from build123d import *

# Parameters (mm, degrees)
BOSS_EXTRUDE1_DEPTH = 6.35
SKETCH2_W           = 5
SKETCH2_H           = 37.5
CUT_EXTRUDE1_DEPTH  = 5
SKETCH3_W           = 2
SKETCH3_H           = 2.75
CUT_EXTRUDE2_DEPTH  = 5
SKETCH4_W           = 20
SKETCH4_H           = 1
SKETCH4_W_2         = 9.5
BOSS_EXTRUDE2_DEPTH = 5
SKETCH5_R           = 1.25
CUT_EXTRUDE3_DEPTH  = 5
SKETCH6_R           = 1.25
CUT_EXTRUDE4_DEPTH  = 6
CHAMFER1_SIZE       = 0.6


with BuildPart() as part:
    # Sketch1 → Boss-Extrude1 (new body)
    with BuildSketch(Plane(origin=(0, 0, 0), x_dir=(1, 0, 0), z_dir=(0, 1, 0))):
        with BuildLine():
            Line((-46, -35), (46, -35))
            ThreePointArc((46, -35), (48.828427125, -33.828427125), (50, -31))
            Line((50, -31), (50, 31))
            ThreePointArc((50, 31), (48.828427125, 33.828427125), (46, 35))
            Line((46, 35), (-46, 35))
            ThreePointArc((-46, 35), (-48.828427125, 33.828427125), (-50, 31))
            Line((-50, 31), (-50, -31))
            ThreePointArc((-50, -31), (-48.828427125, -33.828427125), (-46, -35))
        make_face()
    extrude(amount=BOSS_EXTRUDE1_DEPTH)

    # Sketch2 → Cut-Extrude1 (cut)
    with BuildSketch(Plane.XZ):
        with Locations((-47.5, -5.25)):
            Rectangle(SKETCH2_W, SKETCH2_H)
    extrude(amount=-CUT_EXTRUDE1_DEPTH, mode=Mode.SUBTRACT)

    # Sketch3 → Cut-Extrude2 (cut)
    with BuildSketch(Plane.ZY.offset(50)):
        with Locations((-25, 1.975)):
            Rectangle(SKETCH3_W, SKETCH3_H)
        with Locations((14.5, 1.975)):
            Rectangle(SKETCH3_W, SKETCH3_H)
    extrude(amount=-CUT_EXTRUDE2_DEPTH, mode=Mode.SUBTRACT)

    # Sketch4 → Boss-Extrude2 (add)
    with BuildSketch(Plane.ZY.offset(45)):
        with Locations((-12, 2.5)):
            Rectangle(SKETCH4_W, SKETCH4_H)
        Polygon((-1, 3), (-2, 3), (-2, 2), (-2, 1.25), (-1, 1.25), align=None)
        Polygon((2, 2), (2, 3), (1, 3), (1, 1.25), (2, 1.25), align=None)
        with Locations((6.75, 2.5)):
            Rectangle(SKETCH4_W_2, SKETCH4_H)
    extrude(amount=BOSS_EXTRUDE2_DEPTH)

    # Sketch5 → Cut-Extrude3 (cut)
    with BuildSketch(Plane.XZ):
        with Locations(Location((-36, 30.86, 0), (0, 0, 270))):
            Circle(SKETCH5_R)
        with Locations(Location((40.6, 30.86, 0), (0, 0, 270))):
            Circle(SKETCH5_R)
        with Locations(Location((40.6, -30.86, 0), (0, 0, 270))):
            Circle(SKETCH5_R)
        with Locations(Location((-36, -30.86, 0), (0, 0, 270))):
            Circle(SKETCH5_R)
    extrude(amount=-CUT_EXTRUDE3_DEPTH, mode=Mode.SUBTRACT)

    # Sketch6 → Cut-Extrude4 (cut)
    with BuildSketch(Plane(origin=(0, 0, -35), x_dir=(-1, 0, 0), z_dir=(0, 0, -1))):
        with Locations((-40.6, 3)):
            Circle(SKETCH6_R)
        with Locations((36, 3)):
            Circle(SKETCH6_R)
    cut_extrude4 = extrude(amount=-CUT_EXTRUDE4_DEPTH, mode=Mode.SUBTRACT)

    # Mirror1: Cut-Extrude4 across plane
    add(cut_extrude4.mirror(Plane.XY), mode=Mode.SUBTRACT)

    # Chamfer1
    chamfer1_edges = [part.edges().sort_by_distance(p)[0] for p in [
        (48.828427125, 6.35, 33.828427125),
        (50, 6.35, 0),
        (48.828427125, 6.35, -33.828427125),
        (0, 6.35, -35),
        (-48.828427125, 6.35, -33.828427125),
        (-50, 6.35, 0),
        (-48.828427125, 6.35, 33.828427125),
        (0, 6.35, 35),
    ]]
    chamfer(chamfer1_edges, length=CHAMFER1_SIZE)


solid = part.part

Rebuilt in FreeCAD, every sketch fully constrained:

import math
import FreeCAD as App
import Part
import Sketcher

V = App.Vector
Q = App.Units.Quantity


def edges_at(feature, points):
    """Names of the edges that pass closest to the given points."""
    edges = feature.Shape.Edges
    near = lambda p: min(range(len(edges)), key=lambda i: edges[i].distToShape(Part.Vertex(*p))[0])
    return sorted({f"Edge{near(p) + 1}" for p in points})

doc = App.newDocument("Part")
params = doc.addObject("Spreadsheet::Sheet", "Params")
for row, (alias, value) in enumerate([
    ("sketch1_radius", "4 mm"),
    ("sketch1_width", "92 mm"),
    ("sketch1_height", "62 mm"),
    ("pad1_length", "6.35 mm"),
    ("sketch2_width", "5 mm"),
    ("sketch2_height", "37.5 mm"),
    ("pocket1_length", "5 mm"),
    ("sketch3_height", "2 mm"),
    ("sketch3_width", "2.75 mm"),
    ("pocket2_length", "5 mm"),
    ("sketch4_width", "1 mm"),
    ("sketch4_height", "20 mm"),
    ("sketch4_height2", "9.5 mm"),
    ("sketch4_width2", "0.75 mm"),
    ("pad2_length", "5 mm"),
    ("sketch5_diameter", "2.5 mm"),
    ("pocket3_length", "5 mm"),
    ("sketch6_diameter", "2.5 mm"),
    ("pocket4_length", "6 mm"),
    ("chamfer_size", "0.6 mm"),
], start=1):
    params.set(f"A{row}", alias)
    params.set(f"B{row}", "=" + value)
    params.setAlias(f"B{row}", alias)

body = doc.addObject("PartDesign::Body", "Body")

# Sketch on XZ plane
sketch1 = body.newObject("Sketcher::SketchObject", "Sketch")
sketch1.AttachmentSupport = (doc.getObject("XZ_Plane"), [""])
sketch1.MapMode = "FlatFace"
sketch1.addGeometry(Part.LineSegment(V(-46, 35, 0), V(46, 35, 0)), False)
sketch1.addGeometry(Part.ArcOfCircle(Part.Circle(V(46, 31, 0), V(0, 0, 1), 4), math.radians(0), math.radians(90)), False)
sketch1.addGeometry(Part.LineSegment(V(50, 31, 0), V(50, -31, 0)), False)
sketch1.addGeometry(Part.ArcOfCircle(Part.Circle(V(46, -31, 0), V(0, 0, 1), 4), math.radians(-90), math.radians(0)), False)
sketch1.addGeometry(Part.LineSegment(V(46, -35, 0), V(-46, -35, 0)), False)
sketch1.addGeometry(Part.ArcOfCircle(Part.Circle(V(-46, -31, 0), V(0, 0, 1), 4), math.radians(180), math.radians(270)), False)
sketch1.addGeometry(Part.LineSegment(V(-50, -31, 0), V(-50, 31, 0)), False)
sketch1.addGeometry(Part.ArcOfCircle(Part.Circle(V(-46, 31, 0), V(0, 0, 1), 4), math.radians(90), math.radians(180)), False)
sketch1.addConstraint(Sketcher.Constraint("Tangent", 0, 2, 1, 2))
sketch1.addConstraint(Sketcher.Constraint("Tangent", 1, 1, 2, 1))
sketch1.addConstraint(Sketcher.Constraint("Tangent", 2, 2, 3, 2))
sketch1.addConstraint(Sketcher.Constraint("Tangent", 3, 1, 4, 1))
sketch1.addConstraint(Sketcher.Constraint("Tangent", 4, 2, 5, 2))
sketch1.addConstraint(Sketcher.Constraint("Tangent", 5, 1, 6, 1))
sketch1.addConstraint(Sketcher.Constraint("Tangent", 6, 2, 7, 2))
sketch1.addConstraint(Sketcher.Constraint("Tangent", 7, 1, 0, 1))
sketch1.addConstraint(Sketcher.Constraint("Horizontal", 0))
sketch1.addConstraint(Sketcher.Constraint("Vertical", 2))
sketch1.addConstraint(Sketcher.Constraint("Horizontal", 4))
sketch1.addConstraint(Sketcher.Constraint("Vertical", 6))
sketch1.addConstraint(Sketcher.Constraint("Equal", 1, 3))
sketch1.addConstraint(Sketcher.Constraint("Equal", 3, 5))
sketch1.addConstraint(Sketcher.Constraint("Equal", 5, 7))
sketch1.addConstraint(Sketcher.Constraint("Symmetric", 1, 3, 5, 3, -1, 1))
sketch1.addConstraint(Sketcher.Constraint("Radius", 1, Q("4 mm")))
sketch1.addConstraint(Sketcher.Constraint("DistanceX", 0, 1, 0, 2, Q("92 mm")))
sketch1.addConstraint(Sketcher.Constraint("DistanceY", 2, 2, 2, 1, Q("62 mm")))
sketch1.setExpression("Constraints[16]", "Params.sketch1_radius")
sketch1.setExpression("Constraints[17]", "Params.sketch1_width")
sketch1.setExpression("Constraints[18]", "Params.sketch1_height")
pad1 = body.newObject("PartDesign::Pad", "Pad")
pad1.Profile = sketch1
pad1.setExpression("Length", "Params.pad1_length")
pad1.Reversed = True

# Sketch on XZ plane
sketch2 = body.newObject("Sketcher::SketchObject", "Sketch001")
sketch2.AttachmentSupport = (doc.getObject("XZ_Plane"), [""])
sketch2.MapMode = "FlatFace"
sketch2.addGeometry(Part.LineSegment(V(-50, 14, 0), V(-50, -24, 0)), False)
sketch2.addGeometry(Part.LineSegment(V(-50, -24, 0), V(-45, -24, 0)), False)
sketch2.addGeometry(Part.LineSegment(V(-45, -24, 0), V(-45, 14, 0)), False)
sketch2.addGeometry(Part.LineSegment(V(-45, 14, 0), V(-50, 14, 0)), False)
sketch2.addConstraint(Sketcher.Constraint("Coincident", 0, 2, 1, 1))
sketch2.addConstraint(Sketcher.Constraint("Coincident", 1, 2, 2, 1))
sketch2.addConstraint(Sketcher.Constraint("Coincident", 2, 2, 3, 1))
sketch2.addConstraint(Sketcher.Constraint("Coincident", 3, 2, 0, 1))
sketch2.addConstraint(Sketcher.Constraint("Vertical", 0))
sketch2.addConstraint(Sketcher.Constraint("Horizontal", 1))
sketch2.addConstraint(Sketcher.Constraint("Vertical", 2))
sketch2.addConstraint(Sketcher.Constraint("Horizontal", 3))
sketch2.addConstraint(Sketcher.Constraint("DistanceX", 1, 1, 1, 2, Q("5 mm")))
sketch2.addConstraint(Sketcher.Constraint("DistanceY", 0, 2, 0, 1, Q("37.5 mm")))
sketch2.addConstraint(Sketcher.Constraint("DistanceX", 0, 2, -1, 1, Q("50 mm")))
sketch2.addConstraint(Sketcher.Constraint("DistanceY", 0, 2, -1, 1, Q("24 mm")))
sketch2.setExpression("Constraints[8]", "Params.sketch2_width")
sketch2.setExpression("Constraints[9]", "Params.sketch2_height")
pocket1 = body.newObject("PartDesign::Pocket", "Pocket")
pocket1.Profile = sketch2
pocket1.setExpression("Length", "Params.pocket1_length")

# Sketch on YZ plane
sketch3 = body.newObject("Sketcher::SketchObject", "Sketch002")
sketch3.AttachmentSupport = (doc.getObject("YZ_Plane"), [""])
sketch3.MapMode = "FlatFace"
sketch3.AttachmentOffset = App.Placement(V(0, 0, -50), App.Rotation())
sketch3.addGeometry(Part.LineSegment(V(3.4, -26, 0), V(0.6, -26, 0)), False)
sketch3.addGeometry(Part.LineSegment(V(0.6, -26, 0), V(0.6, -24, 0)), False)
sketch3.addGeometry(Part.LineSegment(V(0.6, -24, 0), V(3.4, -24, 0)), False)
sketch3.addGeometry(Part.LineSegment(V(3.4, -24, 0), V(3.4, -26, 0)), False)
sketch3.addGeometry(Part.LineSegment(V(3.4, 13.5, 0), V(0.6, 13.5, 0)), False)
sketch3.addGeometry(Part.LineSegment(V(0.6, 13.5, 0), V(0.6, 15.5, 0)), False)
sketch3.addGeometry(Part.LineSegment(V(0.6, 15.5, 0), V(3.4, 15.5, 0)), False)
sketch3.addGeometry(Part.LineSegment(V(3.4, 15.5, 0), V(3.4, 13.5, 0)), False)
sketch3.addConstraint(Sketcher.Constraint("Coincident", 0, 2, 1, 1))
sketch3.addConstraint(Sketcher.Constraint("Coincident", 1, 2, 2, 1))
sketch3.addConstraint(Sketcher.Constraint("Coincident", 2, 2, 3, 1))
sketch3.addConstraint(Sketcher.Constraint("Coincident", 3, 2, 0, 1))
sketch3.addConstraint(Sketcher.Constraint("Coincident", 4, 2, 5, 1))
sketch3.addConstraint(Sketcher.Constraint("Coincident", 5, 2, 6, 1))
sketch3.addConstraint(Sketcher.Constraint("Coincident", 6, 2, 7, 1))
sketch3.addConstraint(Sketcher.Constraint("Coincident", 7, 2, 4, 1))
sketch3.addConstraint(Sketcher.Constraint("Horizontal", 0))
sketch3.addConstraint(Sketcher.Constraint("Vertical", 1))
sketch3.addConstraint(Sketcher.Constraint("Horizontal", 2))
sketch3.addConstraint(Sketcher.Constraint("Vertical", 3))
sketch3.addConstraint(Sketcher.Constraint("Horizontal", 4))
sketch3.addConstraint(Sketcher.Constraint("Vertical", 5))
sketch3.addConstraint(Sketcher.Constraint("Horizontal", 6))
sketch3.addConstraint(Sketcher.Constraint("Vertical", 7))
sketch3.addConstraint(Sketcher.Constraint("Vertical", 1, 2, 4, 2))
sketch3.addConstraint(Sketcher.Constraint("Vertical", 3, 2, 6, 2))
sketch3.addConstraint(Sketcher.Constraint("Equal", 3, 5))
sketch3.addConstraint(Sketcher.Constraint("DistanceY", 1, 1, 1, 2, Q("2 mm")))
sketch3.addConstraint(Sketcher.Constraint("DistanceY", 0, 2, -1, 1, Q("26 mm")))
sketch3.addConstraint(Sketcher.Constraint("DistanceX", 0, 2, 0, 1, Q("2.75 mm")))
sketch3.addConstraint(Sketcher.Constraint("DistanceX", -1, 1, 0, 2, Q("0.6 mm")))
sketch3.addConstraint(Sketcher.Constraint("DistanceY", -1, 1, 4, 2, Q("13.5 mm")))
sketch3.setExpression("Constraints[19]", "Params.sketch3_height")
sketch3.setExpression("Constraints[21]", "Params.sketch3_width")
pocket2 = body.newObject("PartDesign::Pocket", "Pocket001")
pocket2.Profile = sketch3
pocket2.setExpression("Length", "Params.pocket2_length")
pocket2.Reversed = True

# Sketch on YZ plane
sketch4 = body.newObject("Sketcher::SketchObject", "Sketch003")
sketch4.AttachmentSupport = (doc.getObject("YZ_Plane"), [""])
sketch4.MapMode = "FlatFace"
sketch4.AttachmentOffset = App.Placement(V(0, 0, -45), App.Rotation())
sketch4.addGeometry(Part.LineSegment(V(3, -22, 0), V(2, -22, 0)), False)
sketch4.addGeometry(Part.LineSegment(V(2, -22, 0), V(2, -2, 0)), False)
sketch4.addGeometry(Part.LineSegment(V(2, -2, 0), V(1.2, -2, 0)), False)
sketch4.addGeometry(Part.LineSegment(V(1.2, -2, 0), V(1.2, -1, 0)), False)
sketch4.addGeometry(Part.LineSegment(V(1.2, -1, 0), V(3, -1, 0)), False)
sketch4.addGeometry(Part.LineSegment(V(3, -1, 0), V(3, -22, 0)), False)
sketch4.addGeometry(Part.LineSegment(V(3, 1, 0), V(1.2, 1, 0)), False)
sketch4.addGeometry(Part.LineSegment(V(1.2, 1, 0), V(1.2, 2, 0)), False)
sketch4.addGeometry(Part.LineSegment(V(1.2, 2, 0), V(2, 2, 0)), False)
sketch4.addGeometry(Part.LineSegment(V(2, 2, 0), V(2, 11.5, 0)), False)
sketch4.addGeometry(Part.LineSegment(V(2, 11.5, 0), V(3, 11.5, 0)), False)
sketch4.addGeometry(Part.LineSegment(V(3, 11.5, 0), V(3, 1, 0)), False)
sketch4.addConstraint(Sketcher.Constraint("Coincident", 0, 2, 1, 1))
sketch4.addConstraint(Sketcher.Constraint("Coincident", 1, 2, 2, 1))
sketch4.addConstraint(Sketcher.Constraint("Coincident", 2, 2, 3, 1))
sketch4.addConstraint(Sketcher.Constraint("Coincident", 3, 2, 4, 1))
sketch4.addConstraint(Sketcher.Constraint("Coincident", 4, 2, 5, 1))
sketch4.addConstraint(Sketcher.Constraint("Coincident", 5, 2, 0, 1))
sketch4.addConstraint(Sketcher.Constraint("Coincident", 6, 2, 7, 1))
sketch4.addConstraint(Sketcher.Constraint("Coincident", 7, 2, 8, 1))
sketch4.addConstraint(Sketcher.Constraint("Coincident", 8, 2, 9, 1))
sketch4.addConstraint(Sketcher.Constraint("Coincident", 9, 2, 10, 1))
sketch4.addConstraint(Sketcher.Constraint("Coincident", 10, 2, 11, 1))
sketch4.addConstraint(Sketcher.Constraint("Coincident", 11, 2, 6, 1))
sketch4.addConstraint(Sketcher.Constraint("Horizontal", 0))
sketch4.addConstraint(Sketcher.Constraint("Vertical", 1))
sketch4.addConstraint(Sketcher.Constraint("Horizontal", 2))
sketch4.addConstraint(Sketcher.Constraint("Vertical", 3))
sketch4.addConstraint(Sketcher.Constraint("Horizontal", 4))
sketch4.addConstraint(Sketcher.Constraint("Vertical", 5))
sketch4.addConstraint(Sketcher.Constraint("Horizontal", 6))
sketch4.addConstraint(Sketcher.Constraint("Vertical", 7))
sketch4.addConstraint(Sketcher.Constraint("Horizontal", 8))
sketch4.addConstraint(Sketcher.Constraint("Vertical", 9))
sketch4.addConstraint(Sketcher.Constraint("Horizontal", 10))
sketch4.addConstraint(Sketcher.Constraint("Vertical", 11))
sketch4.addConstraint(Sketcher.Constraint("Symmetric", 3, 2, 6, 2, -1))
sketch4.addConstraint(Sketcher.Constraint("Symmetric", 1, 2, 8, 2, -1))
sketch4.addConstraint(Sketcher.Constraint("Vertical", 5, 2, 10, 2))
sketch4.addConstraint(Sketcher.Constraint("Equal", 10, 3))
sketch4.addConstraint(Sketcher.Constraint("DistanceX", 0, 2, 0, 1, Q("1 mm")))
sketch4.addConstraint(Sketcher.Constraint("DistanceY", 1, 1, 1, 2, Q("20 mm")))
sketch4.addConstraint(Sketcher.Constraint("DistanceY", 9, 1, 9, 2, Q("9.5 mm")))
sketch4.addConstraint(Sketcher.Constraint("DistanceX", -1, 1, 0, 2, Q("2 mm")))
sketch4.addConstraint(Sketcher.Constraint("DistanceY", 0, 2, -1, 1, Q("22 mm")))
sketch4.addConstraint(Sketcher.Constraint("DistanceX", 2, 2, 2, 1, Q("0.75 mm")))
sketch4.setExpression("Constraints[28]", "Params.sketch4_width")
sketch4.setExpression("Constraints[29]", "Params.sketch4_height")
sketch4.setExpression("Constraints[30]", "Params.sketch4_height2")
sketch4.setExpression("Constraints[33]", "Params.sketch4_width2")
pad2 = body.newObject("PartDesign::Pad", "Pad001")
pad2.Profile = sketch4
pad2.setExpression("Length", "Params.pad2_length")
pad2.Reversed = True

# Sketch on XZ plane
sketch5 = body.newObject("Sketcher::SketchObject", "Sketch004")
sketch5.AttachmentSupport = (doc.getObject("XZ_Plane"), [""])
sketch5.MapMode = "FlatFace"
sketch5.addGeometry(Part.Circle(V(-36, 30.9, 0), V(0, 0, 1), 1.2), False)
sketch5.addGeometry(Part.Circle(V(40.6, 30.9, 0), V(0, 0, 1), 1.2), False)
sketch5.addGeometry(Part.Circle(V(40.6, -30.9, 0), V(0, 0, 1), 1.2), False)
sketch5.addGeometry(Part.Circle(V(-36, -30.9, 0), V(0, 0, 1), 1.2), False)
sketch5.addConstraint(Sketcher.Constraint("Equal", 0, 1))
sketch5.addConstraint(Sketcher.Constraint("Equal", 1, 2))
sketch5.addConstraint(Sketcher.Constraint("Equal", 2, 3))
sketch5.addConstraint(Sketcher.Constraint("Symmetric", 1, 3, 2, 3, -1))
sketch5.addConstraint(Sketcher.Constraint("Symmetric", 0, 3, 3, 3, -1))
sketch5.addConstraint(Sketcher.Constraint("Horizontal", 0, 3, 1, 3))
sketch5.addConstraint(Sketcher.Constraint("Diameter", 0, Q("2.5 mm")))
sketch5.addConstraint(Sketcher.Constraint("DistanceX", 0, 3, -1, 1, Q("36 mm")))
sketch5.addConstraint(Sketcher.Constraint("DistanceX", -1, 1, 1, 3, Q("40.6 mm")))
sketch5.addConstraint(Sketcher.Constraint("DistanceY", -1, 1, 0, 3, Q("30.86 mm")))
sketch5.setExpression("Constraints[6]", "Params.sketch5_diameter")
pocket3 = body.newObject("PartDesign::Pocket", "Pocket002")
pocket3.Profile = sketch5
pocket3.setExpression("Length", "Params.pocket3_length")

# Sketch on XY plane
sketch6 = body.newObject("Sketcher::SketchObject", "Sketch005")
sketch6.AttachmentSupport = (doc.getObject("XY_Plane"), [""])
sketch6.MapMode = "FlatFace"
sketch6.AttachmentOffset = App.Placement(V(0, 0, -35), App.Rotation())
sketch6.addGeometry(Part.Circle(V(40.6, 3, 0), V(0, 0, 1), 1.2), False)
sketch6.addGeometry(Part.Circle(V(-36, 3, 0), V(0, 0, 1), 1.2), False)
sketch6.addConstraint(Sketcher.Constraint("Equal", 0, 1))
sketch6.addConstraint(Sketcher.Constraint("Horizontal", 0, 3, 1, 3))
sketch6.addConstraint(Sketcher.Constraint("Diameter", 0, Q("2.5 mm")))
sketch6.addConstraint(Sketcher.Constraint("DistanceY", -1, 1, 0, 3, Q("3 mm")))
sketch6.addConstraint(Sketcher.Constraint("DistanceX", 1, 3, -1, 1, Q("36 mm")))
sketch6.addConstraint(Sketcher.Constraint("DistanceX", -1, 1, 0, 3, Q("40.6 mm")))
sketch6.setExpression("Constraints[2]", "Params.sketch6_diameter")
pocket4 = body.newObject("PartDesign::Pocket", "Pocket003")
pocket4.Profile = sketch6
pocket4.setExpression("Length", "Params.pocket4_length")
pocket4.Reversed = True
doc.recompute()

mirrored = body.newObject("PartDesign::Mirrored", "Mirrored")
mirrored.Originals = [pocket4]
mirrored.MirrorPlane = (doc.getObject("XY_Plane"), [""])
body.Tip = mirrored
doc.recompute()

chamfer = body.newObject("PartDesign::Chamfer", "Chamfer")
chamfer.Base = (mirrored, edges_at(mirrored, [
    (48.828, 6.35, 33.828),
    (50, 6.35, 0),
    (48.828, 6.35, -33.828),
    (0, 6.35, -35),
    (-48.828, 6.35, -33.828),
    (-50, 6.35, 0),
    (-48.828, 6.35, 33.828),
    (0, 6.35, 35),
]))
chamfer.setExpression("Size", "Params.chamfer_size")

doc.recompute()
